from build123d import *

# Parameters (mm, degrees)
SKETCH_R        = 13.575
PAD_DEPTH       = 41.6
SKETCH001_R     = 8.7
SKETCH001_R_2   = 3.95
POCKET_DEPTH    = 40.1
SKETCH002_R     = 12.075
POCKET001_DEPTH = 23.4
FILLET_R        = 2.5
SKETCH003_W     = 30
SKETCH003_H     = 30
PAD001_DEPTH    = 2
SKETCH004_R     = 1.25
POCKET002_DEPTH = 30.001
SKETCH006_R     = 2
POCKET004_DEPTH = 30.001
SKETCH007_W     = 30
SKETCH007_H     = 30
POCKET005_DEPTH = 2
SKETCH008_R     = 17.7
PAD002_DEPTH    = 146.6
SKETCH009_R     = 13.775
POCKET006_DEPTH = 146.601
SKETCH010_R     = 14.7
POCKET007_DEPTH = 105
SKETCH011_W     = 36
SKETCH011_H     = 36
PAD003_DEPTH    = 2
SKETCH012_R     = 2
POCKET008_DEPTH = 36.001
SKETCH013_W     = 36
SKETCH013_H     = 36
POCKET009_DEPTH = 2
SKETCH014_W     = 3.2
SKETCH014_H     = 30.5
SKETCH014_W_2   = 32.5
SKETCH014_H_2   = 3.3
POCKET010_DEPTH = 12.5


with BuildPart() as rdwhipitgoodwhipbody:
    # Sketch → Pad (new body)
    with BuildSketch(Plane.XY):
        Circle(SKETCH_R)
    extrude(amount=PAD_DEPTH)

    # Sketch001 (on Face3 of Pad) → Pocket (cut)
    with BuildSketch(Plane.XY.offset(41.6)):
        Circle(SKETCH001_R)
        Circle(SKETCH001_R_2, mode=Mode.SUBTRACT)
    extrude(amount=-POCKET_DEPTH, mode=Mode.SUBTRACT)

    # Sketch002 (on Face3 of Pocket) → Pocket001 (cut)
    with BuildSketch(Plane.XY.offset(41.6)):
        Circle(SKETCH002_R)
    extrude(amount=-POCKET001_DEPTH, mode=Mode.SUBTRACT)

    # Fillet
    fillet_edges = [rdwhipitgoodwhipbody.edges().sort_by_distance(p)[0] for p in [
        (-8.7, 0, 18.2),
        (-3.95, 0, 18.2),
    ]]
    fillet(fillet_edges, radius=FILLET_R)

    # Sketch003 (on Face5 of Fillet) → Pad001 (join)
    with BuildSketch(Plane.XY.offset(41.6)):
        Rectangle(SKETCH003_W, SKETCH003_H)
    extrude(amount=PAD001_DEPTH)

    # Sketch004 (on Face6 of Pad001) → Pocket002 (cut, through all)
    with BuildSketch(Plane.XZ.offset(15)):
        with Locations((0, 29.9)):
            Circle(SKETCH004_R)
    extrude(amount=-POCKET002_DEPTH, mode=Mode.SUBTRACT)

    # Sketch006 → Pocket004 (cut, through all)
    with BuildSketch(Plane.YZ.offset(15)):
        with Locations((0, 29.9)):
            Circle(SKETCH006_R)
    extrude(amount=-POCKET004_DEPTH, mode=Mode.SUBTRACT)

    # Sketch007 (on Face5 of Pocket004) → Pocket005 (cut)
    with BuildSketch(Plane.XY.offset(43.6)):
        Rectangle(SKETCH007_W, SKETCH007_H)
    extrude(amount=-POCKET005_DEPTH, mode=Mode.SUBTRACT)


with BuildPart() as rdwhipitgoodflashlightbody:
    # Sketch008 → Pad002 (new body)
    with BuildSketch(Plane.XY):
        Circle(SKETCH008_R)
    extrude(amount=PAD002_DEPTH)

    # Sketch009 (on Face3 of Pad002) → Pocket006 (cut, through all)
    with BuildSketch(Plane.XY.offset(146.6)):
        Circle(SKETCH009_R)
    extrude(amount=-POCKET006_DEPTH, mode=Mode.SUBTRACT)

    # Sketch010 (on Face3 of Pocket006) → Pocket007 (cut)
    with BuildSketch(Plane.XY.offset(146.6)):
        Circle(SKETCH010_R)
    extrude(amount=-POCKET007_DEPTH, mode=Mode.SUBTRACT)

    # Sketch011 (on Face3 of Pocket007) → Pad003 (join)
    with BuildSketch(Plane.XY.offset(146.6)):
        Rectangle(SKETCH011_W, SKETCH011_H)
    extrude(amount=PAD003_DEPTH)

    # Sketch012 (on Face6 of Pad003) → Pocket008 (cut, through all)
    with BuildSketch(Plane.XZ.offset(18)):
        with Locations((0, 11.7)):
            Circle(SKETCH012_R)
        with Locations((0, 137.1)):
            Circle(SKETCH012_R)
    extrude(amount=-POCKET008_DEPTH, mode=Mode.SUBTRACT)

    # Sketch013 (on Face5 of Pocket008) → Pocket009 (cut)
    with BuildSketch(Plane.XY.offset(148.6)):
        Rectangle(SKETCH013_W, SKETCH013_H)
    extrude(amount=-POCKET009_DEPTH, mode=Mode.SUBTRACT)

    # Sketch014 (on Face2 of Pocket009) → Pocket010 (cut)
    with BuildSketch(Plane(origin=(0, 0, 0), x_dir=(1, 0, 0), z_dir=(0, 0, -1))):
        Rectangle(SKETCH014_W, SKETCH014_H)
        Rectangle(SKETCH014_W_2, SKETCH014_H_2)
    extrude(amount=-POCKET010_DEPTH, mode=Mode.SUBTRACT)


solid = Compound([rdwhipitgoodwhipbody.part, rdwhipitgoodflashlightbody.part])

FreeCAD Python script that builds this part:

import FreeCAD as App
import Part
import Sketcher
Q = App.Units.Quantity


def edges_at(feature, points):
    """Names of the edges that pass closest to the given points."""
    edges = feature.Shape.Edges
    near = lambda p: min(range(len(edges)), key=lambda i: edges[i].distToShape(Part.Vertex(*p))[0])
    return sorted({f"Edge{near(p) + 1}" for p in points})

doc = App.newDocument("Part")
body = doc.addObject("PartDesign::Body", "Body")

# Sketch on XY plane
sketch1 = body.newObject("Sketcher::SketchObject", "Sketch")
sketch1.AttachmentSupport = (doc.getObject("XY_Plane"), [""])
sketch1.MapMode = "FlatFace"
sketch1.addGeometry(Part.Circle(App.Vector(0, 0, 0), App.Vector(0, 0, 1), 14), False)
sketch1.addConstraint([
    Sketcher.Constraint("Coincident", 0, 3, -1, 1),
    Sketcher.Constraint("Diameter", 0, Q("27.15 mm")),
])
pad1 = body.newObject("PartDesign::Pad", "Pad")
pad1.Profile = sketch1
pad1.Length = 41.6

# Sketch on XY plane
sketch2 = body.newObject("Sketcher::SketchObject", "Sketch001")
sketch2.AttachmentSupport = (doc.getObject("XY_Plane"), [""])
sketch2.MapMode = "FlatFace"
sketch2.AttachmentOffset = App.Placement(App.Vector(0, 0, 41.6), App.Rotation())
sketch2.addGeometry([
    Part.Circle(App.Vector(0, 0, 0), App.Vector(0, 0, 1), 8.7),
    Part.Circle(App.Vector(0, 0, 0), App.Vector(0, 0, 1), 4),
], False)
sketch2.addConstraint([
    Sketcher.Constraint("Coincident", 0, 3, -1, 1),
    Sketcher.Constraint("Coincident", 1, 3, -1, 1),
    Sketcher.Constraint("Diameter", 0, Q("17.4 mm")),
    Sketcher.Constraint("Diameter", 1, Q("7.9 mm")),
])
pocket1 = body.newObject("PartDesign::Pocket", "Pocket")
pocket1.Profile = sketch2
pocket1.Length = 40.1

# Sketch on XY plane
sketch3 = body.newObject("Sketcher::SketchObject", "Sketch002")
sketch3.AttachmentSupport = (doc.getObject("XY_Plane"), [""])
sketch3.MapMode = "FlatFace"
sketch3.AttachmentOffset = App.Placement(App.Vector(0, 0, 41.6), App.Rotation())
sketch3.addGeometry(Part.Circle(App.Vector(0, 0, 0), App.Vector(0, 0, 1), 12), False)
sketch3.addConstraint([
    Sketcher.Constraint("Coincident", 0, 3, -1, 1),
    Sketcher.Constraint("Diameter", 0, Q("24.15 mm")),
])
pocket2 = body.newObject("PartDesign::Pocket", "Pocket001")
pocket2.Profile = sketch3
pocket2.Length = 23.4
doc.recompute()

fillet = body.newObject("PartDesign::Fillet", "Fillet")
fillet.Base = (pocket2, edges_at(pocket2, [(-8.7, 0, 18.2), (-3.95, 0, 18.2)]))
fillet.Radius = 2.5

# Sketch on XY plane
sketch4 = body.newObject("Sketcher::SketchObject", "Sketch003")
sketch4.AttachmentSupport = (doc.getObject("XY_Plane"), [""])
sketch4.MapMode = "FlatFace"
sketch4.AttachmentOffset = App.Placement(App.Vector(0, 0, 41.6), App.Rotation())
sketch4.addGeometry([
    Part.LineSegment(App.Vector(-15, 15, 0), App.Vector(-15, -15, 0)),
    Part.LineSegment(App.Vector(-15, -15, 0), App.Vector(15, -15, 0)),
    Part.LineSegment(App.Vector(15, -15, 0), App.Vector(15, 15, 0)),
    Part.LineSegment(App.Vector(15, 15, 0), App.Vector(-15, 15, 0)),
], False)
sketch4.addConstraint([
    Sketcher.Constraint("Coincident", 0, 2, 1, 1),
    Sketcher.Constraint("Coincident", 1, 2, 2, 1),
    Sketcher.Constraint("Coincident", 2, 2, 3, 1),
    Sketcher.Constraint("Coincident", 3, 2, 0, 1),
    Sketcher.Constraint("Vertical", 0),
    Sketcher.Constraint("Horizontal", 1),
    Sketcher.Constraint("Vertical", 2),
    Sketcher.Constraint("Horizontal", 3),
    Sketcher.Constraint("Symmetric", 0, 2, 2, 2, -1, 1),
    Sketcher.Constraint("Equal", 3, 0),
    Sketcher.Constraint("DistanceX", 1, 1, 1, 2, Q("30 mm")),
])
pad2 = body.newObject("PartDesign::Pad", "Pad001")
pad2.Profile = sketch4
pad2.Length = 2

# Sketch on XZ plane
sketch5 = body.newObject("Sketcher::SketchObject", "Sketch004")
sketch5.AttachmentSupport = (doc.getObject("XZ_Plane"), [""])
sketch5.MapMode = "FlatFace"
sketch5.AttachmentOffset = App.Placement(App.Vector(0, 0, 15), App.Rotation())
sketch5.addGeometry(Part.Circle(App.Vector(0, 29.9, 0), App.Vector(0, 0, 1), 1.2), False)
sketch5.addConstraint([
    Sketcher.Constraint("PointOnObject", 0, 3, -2),
    Sketcher.Constraint("Diameter", 0, Q("2.5 mm")),
    Sketcher.Constraint("DistanceY", -1, 1, 0, 3, Q("29.9 mm")),
])
pocket3 = body.newObject("PartDesign::Pocket", "Pocket002")
pocket3.Profile = sketch5
pocket3.Type = "ThroughAll"

# Sketch on YZ plane
sketch6 = body.newObject("Sketcher::SketchObject", "Sketch005")
sketch6.AttachmentSupport = (doc.getObject("YZ_Plane"), [""])
sketch6.MapMode = "FlatFace"
sketch6.AttachmentOffset = App.Placement(App.Vector(0, 0, 15), App.Rotation())
sketch6.addGeometry(Part.Circle(App.Vector(0, 29.9, 0), App.Vector(0, 0, 1), 2), False)
sketch6.addConstraint([
    Sketcher.Constraint("PointOnObject", 0, 3, -2),
    Sketcher.Constraint("Diameter", 0, Q("4 mm")),
    Sketcher.Constraint("DistanceY", -1, 1, 0, 3, Q("29.9 mm")),
])
pocket4 = body.newObject("PartDesign::Pocket", "Pocket003")
pocket4.Profile = sketch6
pocket4.Type = "ThroughAll"

# Sketch on XY plane
sketch7 = body.newObject("Sketcher::SketchObject", "Sketch006")
sketch7.AttachmentSupport = (doc.getObject("XY_Plane"), [""])
sketch7.MapMode = "FlatFace"
sketch7.AttachmentOffset = App.Placement(App.Vector(0, 0, 43.6), App.Rotation())
sketch7.addGeometry([
    Part.LineSegment(App.Vector(-15, 15, 0), App.Vector(-15, -15, 0)),
    Part.LineSegment(App.Vector(-15, -15, 0), App.Vector(15, -15, 0)),
    Part.LineSegment(App.Vector(15, -15, 0), App.Vector(15, 15, 0)),
    Part.LineSegment(App.Vector(15, 15, 0), App.Vector(-15, 15, 0)),
], False)
sketch7.addConstraint([
    Sketcher.Constraint("Coincident", 0, 2, 1, 1),
    Sketcher.Constraint("Coincident", 1, 2, 2, 1),
    Sketcher.Constraint("Coincident", 2, 2, 3, 1),
    Sketcher.Constraint("Coincident", 3, 2, 0, 1),
    Sketcher.Constraint("Vertical", 0),
    Sketcher.Constraint("Horizontal", 1),
    Sketcher.Constraint("Vertical", 2),
    Sketcher.Constraint("Horizontal", 3),
    Sketcher.Constraint("Symmetric", 0, 2, 2, 2, -1, 1),
    Sketcher.Constraint("Equal", 3, 0),
    Sketcher.Constraint("DistanceX", 1, 1, 1, 2, Q("30 mm")),
])
pocket5 = body.newObject("PartDesign::Pocket", "Pocket004")
pocket5.Profile = sketch7
pocket5.Length = 2
body2 = doc.addObject("PartDesign::Body", "Body001")

# Sketch on XY plane
sketch8 = body2.newObject("Sketcher::SketchObject", "Sketch007")
sketch8.AttachmentSupport = (doc.getObject("XY_Plane001"), [""])
sketch8.MapMode = "FlatFace"
sketch8.addGeometry(Part.Circle(App.Vector(0, 0, 0), App.Vector(0, 0, 1), 18), False)
sketch8.addConstraint([
    Sketcher.Constraint("Coincident", 0, 3, -1, 1),
    Sketcher.Constraint("Diameter", 0, Q("35.4 mm")),
])
pad3 = body2.newObject("PartDesign::Pad", "Pad002")
pad3.Profile = sketch8
pad3.Length = 146.6

# Sketch on XY plane
sketch9 = body2.newObject("Sketcher::SketchObject", "Sketch008")
sketch9.AttachmentSupport = (doc.getObject("XY_Plane001"), [""])
sketch9.MapMode = "FlatFace"
sketch9.AttachmentOffset = App.Placement(App.Vector(0, 0, 146.6), App.Rotation())
sketch9.addGeometry(Part.Circle(App.Vector(0, 0, 0), App.Vector(0, 0, 1), 14), False)
sketch9.addConstraint([
    Sketcher.Constraint("Coincident", 0, 3, -1, 1),
    Sketcher.Constraint("Diameter", 0, Q("27.55 mm")),
])
pocket6 = body2.newObject("PartDesign::Pocket", "Pocket005")
pocket6.Profile = sketch9
pocket6.Type = "ThroughAll"

# Sketch on XY plane
sketch10 = body2.newObject("Sketcher::SketchObject", "Sketch009")
sketch10.AttachmentSupport = (doc.getObject("XY_Plane001"), [""])
sketch10.MapMode = "FlatFace"
sketch10.AttachmentOffset = App.Placement(App.Vector(0, 0, 146.6), App.Rotation())
sketch10.addGeometry(Part.Circle(App.Vector(0, 0, 0), App.Vector(0, 0, 1), 15), False)
sketch10.addConstraint([
    Sketcher.Constraint("Coincident", 0, 3, -1, 1),
    Sketcher.Constraint("Diameter", 0, Q("29.4 mm")),
])
pocket7 = body2.newObject("PartDesign::Pocket", "Pocket006")
pocket7.Profile = sketch10
pocket7.Length = 105

# Sketch on XY plane
sketch11 = body2.newObject("Sketcher::SketchObject", "Sketch010")
sketch11.AttachmentSupport = (doc.getObject("XY_Plane001"), [""])
sketch11.MapMode = "FlatFace"
sketch11.AttachmentOffset = App.Placement(App.Vector(0, 0, 146.6), App.Rotation())
sketch11.addGeometry([
    Part.LineSegment(App.Vector(-18, 18, 0), App.Vector(-18, -18, 0)),
    Part.LineSegment(App.Vector(-18, -18, 0), App.Vector(18, -18, 0)),
    Part.LineSegment(App.Vector(18, -18, 0), App.Vector(18, 18, 0)),
    Part.LineSegment(App.Vector(18, 18, 0), App.Vector(-18, 18, 0)),
], False)
sketch11.addConstraint([
    Sketcher.Constraint("Coincident", 0, 2, 1, 1),
    Sketcher.Constraint("Coincident", 1, 2, 2, 1),
    Sketcher.Constraint("Coincident", 2, 2, 3, 1),
    Sketcher.Constraint("Coincident", 3, 2, 0, 1),
    Sketcher.Constraint("Vertical", 0),
    Sketcher.Constraint("Horizontal", 1),
    Sketcher.Constraint("Vertical", 2),
    Sketcher.Constraint("Horizontal", 3),
    Sketcher.Constraint("Symmetric", 0, 2, 2, 2, -1, 1),
    Sketcher.Constraint("Equal", 3, 0),
    Sketcher.Constraint("DistanceX", 1, 1, 1, 2, Q("36 mm")),
])
pad4 = body2.newObject("PartDesign::Pad", "Pad003")
pad4.Profile = sketch11
pad4.Length = 2

# Sketch on XZ plane
sketch12 = body2.newObject("Sketcher::SketchObject", "Sketch011")
sketch12.AttachmentSupport = (doc.getObject("XZ_Plane001"), [""])
sketch12.MapMode = "FlatFace"
sketch12.AttachmentOffset = App.Placement(App.Vector(0, 0, 18), App.Rotation())
sketch12.addGeometry([
    Part.Circle(App.Vector(0, 11.7, 0), App.Vector(0, 0, 1), 2),
    Part.Circle(App.Vector(0, 137.1, 0), App.Vector(0, 0, 1), 2),
], False)
sketch12.addConstraint([
    Sketcher.Constraint("Equal", 0, 1),
    Sketcher.Constraint("PointOnObject", 0, 3, -2),
    Sketcher.Constraint("PointOnObject", 1, 3, -2),
    Sketcher.Constraint("Diameter", 0, Q("4 mm")),
    Sketcher.Constraint("DistanceY", -1, 1, 0, 3, Q("11.7 mm")),
    Sketcher.Constraint("DistanceY", -1, 1, 1, 3, Q("137.1 mm")),
])
pocket8 = body2.newObject("PartDesign::Pocket", "Pocket007")
pocket8.Profile = sketch12
pocket8.Type = "ThroughAll"

# Sketch on XY plane
sketch13 = body2.newObject("Sketcher::SketchObject", "Sketch012")
sketch13.AttachmentSupport = (doc.getObject("XY_Plane001"), [""])
sketch13.MapMode = "FlatFace"
sketch13.AttachmentOffset = App.Placement(App.Vector(0, 0, 148.6), App.Rotation())
sketch13.addGeometry([
    Part.LineSegment(App.Vector(-18, 18, 0), App.Vector(-18, -18, 0)),
    Part.LineSegment(App.Vector(-18, -18, 0), App.Vector(18, -18, 0)),
    Part.LineSegment(App.Vector(18, -18, 0), App.Vector(18, 18, 0)),
    Part.LineSegment(App.Vector(18, 18, 0), App.Vector(-18, 18, 0)),
], False)
sketch13.addConstraint([
    Sketcher.Constraint("Coincident", 0, 2, 1, 1),
    Sketcher.Constraint("Coincident", 1, 2, 2, 1),
    Sketcher.Constraint("Coincident", 2, 2, 3, 1),
    Sketcher.Constraint("Coincident", 3, 2, 0, 1),
    Sketcher.Constraint("Vertical", 0),
    Sketcher.Constraint("Horizontal", 1),
    Sketcher.Constraint("Vertical", 2),
    Sketcher.Constraint("Horizontal", 3),
    Sketcher.Constraint("Symmetric", 0, 2, 2, 2, -1, 1),
    Sketcher.Constraint("Equal", 3, 0),
    Sketcher.Constraint("DistanceX", 1, 1, 1, 2, Q("36 mm")),
])
pocket9 = body2.newObject("PartDesign::Pocket", "Pocket008")
pocket9.Profile = sketch13
pocket9.Length = 2

# Sketch on XY plane
sketch14 = body2.newObject("Sketcher::SketchObject", "Sketch013")
sketch14.AttachmentSupport = (doc.getObject("XY_Plane001"), [""])
sketch14.MapMode = "FlatFace"
sketch14.addGeometry([
    Part.LineSegment(App.Vector(-1.6, 1.6, 0), App.Vector(-1.6, 15.2, 0)),  # 0
    Part.LineSegment(App.Vector(-1.6, 15.2, 0), App.Vector(1.6, 15.2, 0)),  # 1
    Part.LineSegment(App.Vector(1.6, 15.2, 0), App.Vector(1.6, 1.6, 0)),  # 2
    Part.LineSegment(App.Vector(1.6, 1.6, 0), App.Vector(16.2, 1.6, 0)),  # 3
    Part.LineSegment(App.Vector(16.2, 1.6, 0), App.Vector(16.2, -1.6, 0)),  # 4
    Part.LineSegment(App.Vector(16.2, -1.6, 0), App.Vector(1.6, -1.6, 0)),  # 5
    Part.LineSegment(App.Vector(1.6, -1.6, 0), App.Vector(1.6, -15.2, 0)),  # 6
    Part.LineSegment(App.Vector(1.6, -15.2, 0), App.Vector(-1.6, -15.2, 0)),  # 7
    Part.LineSegment(App.Vector(-1.6, -15.2, 0), App.Vector(-1.6, -1.6, 0)),  # 8
    Part.LineSegment(App.Vector(-1.6, -1.6, 0), App.Vector(-16.2, -1.6, 0)),  # 9
    Part.LineSegment(App.Vector(-16.2, -1.6, 0), App.Vector(-16.2, 1.6, 0)),  # 10
    Part.LineSegment(App.Vector(-16.2, 1.6, 0), App.Vector(-1.6, 1.6, 0)),  # 11
], False)
sketch14.addConstraint([
    Sketcher.Constraint("Coincident", 0, 2, 1, 1),
    Sketcher.Constraint("Coincident", 1, 2, 2, 1),
    Sketcher.Constraint("Coincident", 2, 2, 3, 1),
    Sketcher.Constraint("Coincident", 3, 2, 4, 1),
    Sketcher.Constraint("Coincident", 4, 2, 5, 1),
    Sketcher.Constraint("Coincident", 5, 2, 6, 1),
    Sketcher.Constraint("Coincident", 6, 2, 7, 1),
    Sketcher.Constraint("Coincident", 7, 2, 8, 1),
    Sketcher.Constraint("Coincident", 8, 2, 9, 1),
    Sketcher.Constraint("Coincident", 9, 2, 10, 1),
    Sketcher.Constraint("Coincident", 10, 2, 11, 1),
    Sketcher.Constraint("Coincident", 11, 2, 0, 1),
    Sketcher.Constraint("Vertical", 0),
    Sketcher.Constraint("Horizontal", 1),
    Sketcher.Constraint("Vertical", 2),
    Sketcher.Constraint("Horizontal", 3),
    Sketcher.Constraint("Vertical", 4),
    Sketcher.Constraint("Horizontal", 5),
    Sketcher.Constraint("Vertical", 6),
    Sketcher.Constraint("Horizontal", 7),
    Sketcher.Constraint("Vertical", 8),
    Sketcher.Constraint("Horizontal", 9),
    Sketcher.Constraint("Vertical", 10),
    Sketcher.Constraint("Horizontal", 11),
    Sketcher.Constraint("Symmetric", 0, 2, 6, 2, -1, 1),
    Sketcher.Constraint("Symmetric", 2, 2, 8, 2, -1, 1),
    Sketcher.Constraint("Symmetric", 4, 2, 10, 2, -1, 1),
    Sketcher.Constraint("Symmetric", 5, 2, 8, 2, -2),
    Sketcher.Constraint("DistanceX", 1, 1, 1, 2, Q("3.2 mm")),
    Sketcher.Constraint("DistanceY", 0, 1, 0, 2, Q("13.6 mm")),
    Sketcher.Constraint("DistanceY", 4, 2, 4, 1, Q("3.3 mm")),
    Sketcher.Constraint("DistanceX", 3, 1, 3, 2, Q("14.65 mm")),
])
pocket10 = body2.newObject("PartDesign::Pocket", "Pocket009")
pocket10.Profile = sketch14
pocket10.Length = 12.5
pocket10.Reversed = True

doc.recompute()
